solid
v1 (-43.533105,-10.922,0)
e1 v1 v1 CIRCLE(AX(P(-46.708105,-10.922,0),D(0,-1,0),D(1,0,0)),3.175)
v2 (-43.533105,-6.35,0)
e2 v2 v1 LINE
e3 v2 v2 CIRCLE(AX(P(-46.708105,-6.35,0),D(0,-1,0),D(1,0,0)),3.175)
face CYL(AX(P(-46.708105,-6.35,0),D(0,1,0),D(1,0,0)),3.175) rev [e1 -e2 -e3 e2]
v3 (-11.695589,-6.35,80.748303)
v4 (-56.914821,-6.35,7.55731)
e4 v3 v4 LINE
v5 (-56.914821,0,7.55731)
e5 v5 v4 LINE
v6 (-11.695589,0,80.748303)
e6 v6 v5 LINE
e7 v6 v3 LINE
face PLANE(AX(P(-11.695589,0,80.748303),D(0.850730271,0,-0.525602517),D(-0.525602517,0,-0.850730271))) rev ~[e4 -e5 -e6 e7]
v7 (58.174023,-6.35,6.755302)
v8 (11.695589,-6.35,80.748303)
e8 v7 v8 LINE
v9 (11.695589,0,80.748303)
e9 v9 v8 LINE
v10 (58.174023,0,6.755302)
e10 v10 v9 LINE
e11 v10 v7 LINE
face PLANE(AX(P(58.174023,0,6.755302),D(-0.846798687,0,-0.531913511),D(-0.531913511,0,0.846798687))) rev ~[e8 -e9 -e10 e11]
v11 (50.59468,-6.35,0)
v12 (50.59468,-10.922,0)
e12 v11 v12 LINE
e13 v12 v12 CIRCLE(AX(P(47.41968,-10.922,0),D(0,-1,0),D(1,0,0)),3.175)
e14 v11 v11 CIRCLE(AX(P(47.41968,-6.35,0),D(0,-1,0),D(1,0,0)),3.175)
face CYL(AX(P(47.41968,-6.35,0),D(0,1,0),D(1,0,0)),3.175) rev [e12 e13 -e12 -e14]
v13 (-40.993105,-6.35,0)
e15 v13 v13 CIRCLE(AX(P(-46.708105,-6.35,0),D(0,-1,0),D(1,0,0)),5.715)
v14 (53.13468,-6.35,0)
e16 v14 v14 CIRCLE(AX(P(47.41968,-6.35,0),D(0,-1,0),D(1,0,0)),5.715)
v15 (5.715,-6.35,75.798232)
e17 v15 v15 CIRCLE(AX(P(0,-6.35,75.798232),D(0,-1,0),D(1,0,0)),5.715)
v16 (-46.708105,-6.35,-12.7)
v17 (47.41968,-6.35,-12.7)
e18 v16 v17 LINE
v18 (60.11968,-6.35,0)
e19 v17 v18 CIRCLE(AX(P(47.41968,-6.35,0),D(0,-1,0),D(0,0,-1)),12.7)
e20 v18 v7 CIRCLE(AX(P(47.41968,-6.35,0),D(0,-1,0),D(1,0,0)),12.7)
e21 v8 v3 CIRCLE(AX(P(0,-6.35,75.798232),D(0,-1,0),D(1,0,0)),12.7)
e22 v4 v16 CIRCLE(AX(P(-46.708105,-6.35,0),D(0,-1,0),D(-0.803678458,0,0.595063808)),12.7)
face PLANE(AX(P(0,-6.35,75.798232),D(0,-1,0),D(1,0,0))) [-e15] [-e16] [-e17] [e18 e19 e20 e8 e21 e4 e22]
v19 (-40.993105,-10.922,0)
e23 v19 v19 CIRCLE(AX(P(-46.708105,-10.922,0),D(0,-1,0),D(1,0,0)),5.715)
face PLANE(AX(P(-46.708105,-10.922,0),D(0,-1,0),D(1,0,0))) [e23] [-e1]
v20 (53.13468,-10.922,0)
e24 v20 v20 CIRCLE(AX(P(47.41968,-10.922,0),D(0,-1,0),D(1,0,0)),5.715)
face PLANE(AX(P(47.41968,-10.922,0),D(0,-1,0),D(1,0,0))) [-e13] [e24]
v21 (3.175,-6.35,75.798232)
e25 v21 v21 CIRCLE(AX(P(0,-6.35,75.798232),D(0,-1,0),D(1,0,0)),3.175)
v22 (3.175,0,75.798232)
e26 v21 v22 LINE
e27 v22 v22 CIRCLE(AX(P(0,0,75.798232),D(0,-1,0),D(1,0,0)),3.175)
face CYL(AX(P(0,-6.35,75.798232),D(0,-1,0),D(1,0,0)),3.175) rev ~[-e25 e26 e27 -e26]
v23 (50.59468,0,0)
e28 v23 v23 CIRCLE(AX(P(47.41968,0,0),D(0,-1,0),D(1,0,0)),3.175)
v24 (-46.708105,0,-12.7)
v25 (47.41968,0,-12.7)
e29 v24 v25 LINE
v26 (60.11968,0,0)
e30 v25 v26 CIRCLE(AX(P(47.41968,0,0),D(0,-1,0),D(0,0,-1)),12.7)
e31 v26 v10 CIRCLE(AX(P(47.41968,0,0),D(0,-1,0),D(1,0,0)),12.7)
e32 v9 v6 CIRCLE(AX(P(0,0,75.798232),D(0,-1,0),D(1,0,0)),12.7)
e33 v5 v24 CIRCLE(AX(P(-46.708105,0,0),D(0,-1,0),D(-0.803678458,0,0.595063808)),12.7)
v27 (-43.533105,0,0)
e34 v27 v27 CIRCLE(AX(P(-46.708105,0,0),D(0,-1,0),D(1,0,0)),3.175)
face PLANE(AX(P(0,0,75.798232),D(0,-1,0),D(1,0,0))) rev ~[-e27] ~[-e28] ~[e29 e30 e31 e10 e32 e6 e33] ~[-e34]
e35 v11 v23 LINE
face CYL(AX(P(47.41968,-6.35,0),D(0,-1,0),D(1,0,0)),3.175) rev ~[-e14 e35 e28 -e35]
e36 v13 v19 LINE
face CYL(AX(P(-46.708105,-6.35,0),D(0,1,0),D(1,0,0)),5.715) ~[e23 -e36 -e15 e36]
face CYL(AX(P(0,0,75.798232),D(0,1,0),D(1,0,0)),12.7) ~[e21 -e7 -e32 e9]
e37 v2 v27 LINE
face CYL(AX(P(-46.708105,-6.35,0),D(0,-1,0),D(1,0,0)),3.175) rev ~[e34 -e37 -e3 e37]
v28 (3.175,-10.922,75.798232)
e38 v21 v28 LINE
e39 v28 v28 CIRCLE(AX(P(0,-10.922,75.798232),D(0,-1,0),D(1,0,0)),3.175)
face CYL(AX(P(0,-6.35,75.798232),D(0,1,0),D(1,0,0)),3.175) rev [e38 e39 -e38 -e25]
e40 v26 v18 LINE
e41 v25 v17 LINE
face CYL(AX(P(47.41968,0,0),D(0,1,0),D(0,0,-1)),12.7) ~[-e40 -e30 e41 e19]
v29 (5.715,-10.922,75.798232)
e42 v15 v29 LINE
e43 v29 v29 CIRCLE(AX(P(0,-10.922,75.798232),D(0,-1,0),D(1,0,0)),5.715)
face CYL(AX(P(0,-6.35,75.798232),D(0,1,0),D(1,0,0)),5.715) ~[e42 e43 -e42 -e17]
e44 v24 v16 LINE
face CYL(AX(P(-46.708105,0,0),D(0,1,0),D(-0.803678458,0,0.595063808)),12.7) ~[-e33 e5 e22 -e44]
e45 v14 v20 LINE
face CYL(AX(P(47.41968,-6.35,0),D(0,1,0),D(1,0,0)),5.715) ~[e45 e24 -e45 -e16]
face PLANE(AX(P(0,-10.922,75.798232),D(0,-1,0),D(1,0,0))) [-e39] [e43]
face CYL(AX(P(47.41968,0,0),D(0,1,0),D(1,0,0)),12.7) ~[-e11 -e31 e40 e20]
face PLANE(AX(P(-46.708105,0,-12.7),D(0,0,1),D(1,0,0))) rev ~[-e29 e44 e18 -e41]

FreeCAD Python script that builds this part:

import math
import FreeCAD as App
import Part
import Sketcher
from FreeCAD import Vector
Q = App.Units.Quantity

doc = App.newDocument("Part")
params = doc.addObject("Spreadsheet::Sheet", "Params")
for row, (alias, value) in enumerate([
    ("sketch1_radius", "0.5 in"),
    ("pad1_length", "0.25 in"),
    ("sketch2_diameter", "0.25 in"),
    ("pocket1_length", "1 in"),
    ("sketch3_diameter", "0.45 in"),
    ("sketch3_diameter2", "0.25 in"),
    ("pad2_length", "0.18 in"),
], start=1):
    params.set(f"A{row}", alias)
    params.set(f"B{row}", "=" + value)
    params.setAlias(f"B{row}", alias)

body = doc.addObject("PartDesign::Body", "Body")

sketch1 = doc.addObject("Sketcher::SketchObject", "Sketch")
body.addObject(sketch1)
sketch1.AttachmentSupport = (doc.XZ_Plane, [""])
sketch1.MapMode = "FlatFace"
sketch1.addGeometry(Part.ArcOfCircle(Part.Circle(Vector(0, 76, 0), Vector(0, 0, 1), 13), math.radians(23), math.radians(157)), False)
sketch1.addGeometry(Part.LineSegment(Vector(-12, 81, 0), Vector(-57, 8, 0)), False)
sketch1.addGeometry(Part.ArcOfCircle(Part.Circle(Vector(-47, 0, 0), Vector(0, 0, 1), 13), math.radians(143), math.radians(270)), False)
sketch1.addGeometry(Part.LineSegment(Vector(-47, -13, 0), Vector(47, -13, 0)), False)
sketch1.addGeometry(Part.ArcOfCircle(Part.Circle(Vector(47, 0, 0), Vector(0, 0, 1), 13), math.radians(-90), math.radians(0)), False)
sketch1.addGeometry(Part.ArcOfCircle(Part.Circle(Vector(47, 0, 0), Vector(0, 0, 1), 13), math.radians(0), math.radians(32)), False)
sketch1.addGeometry(Part.LineSegment(Vector(58, 7, 0), Vector(12, 81, 0)), False)
sketch1.addConstraint(Sketcher.Constraint("Coincident", 0, 2, 1, 1))
sketch1.addConstraint(Sketcher.Constraint("Coincident", 1, 2, 2, 1))
sketch1.addConstraint(Sketcher.Constraint("Tangent", 2, 2, 3, 1))
sketch1.addConstraint(Sketcher.Constraint("Tangent", 3, 2, 4, 1))
sketch1.addConstraint(Sketcher.Constraint("Tangent", 4, 2, 5, 1))
sketch1.addConstraint(Sketcher.Constraint("Tangent", 5, 2, 6, 1))
sketch1.addConstraint(Sketcher.Constraint("Coincident", 6, 2, 0, 1))
sketch1.addConstraint(Sketcher.Constraint("Horizontal", 3))
sketch1.addConstraint(Sketcher.Constraint("Equal", 0, 2))
sketch1.addConstraint(Sketcher.Constraint("Equal", 2, 4))
sketch1.addConstraint(Sketcher.Constraint("Equal", 4, 5))
sketch1.addConstraint(Sketcher.Constraint("Symmetric", 0, 2, 6, 2, -2))
sketch1.addConstraint(Sketcher.Constraint("PointOnObject", 2, 3, -1))
sketch1.addConstraint(Sketcher.Constraint("PointOnObject", 4, 2, -1))
sketch1.addConstraint(Sketcher.Constraint("Radius", 0, Q("0.5 in")))
sketch1.addConstraint(Sketcher.Constraint("DistanceY", -1, 1, 5, 2, Q("6.755302 mm")))
sketch1.addConstraint(Sketcher.Constraint("DistanceX", 1, 2, 4, 3, Q("104.334501 mm")))
sketch1.addConstraint(Sketcher.Constraint("DistanceY", 5, 2, 6, 2, Q("73.993002 mm")))
sketch1.addConstraint(Sketcher.Constraint("DistanceX", 3, 1, 3, 2, Q("94.127785 mm")))
sketch1.addConstraint(Sketcher.Constraint("DistanceX", -1, 1, 4, 3, Q("47.41968 mm")))
sketch1.setExpression("Constraints[14]", "Params.sketch1_radius")
pad1 = doc.addObject("PartDesign::Pad", "Pad")
body.addObject(pad1)
pad1.Profile = sketch1
pad1.setExpression("Length", "Params.pad1_length")

sketch2 = doc.addObject("Sketcher::SketchObject", "Sketch001")
body.addObject(sketch2)
sketch2.AttachmentSupport = (doc.XZ_Plane, [""])
sketch2.MapMode = "FlatFace"
sketch2.AttachmentOffset = App.Placement(Vector(0, 0, 0.25 * 25.4), App.Rotation())
sketch2.addGeometry(Part.Circle(Vector(-46.7, 0, 0), Vector(0, 0, 1), 3.2), False)
sketch2.addGeometry(Part.Circle(Vector(47.4, 0, 0), Vector(0, 0, 1), 3.2), False)
sketch2.addGeometry(Part.Circle(Vector(0, 75.8, 0), Vector(0, 0, 1), 3.2), False)
sketch2.addConstraint(Sketcher.Constraint("Equal", 0, 1))
sketch2.addConstraint(Sketcher.Constraint("Equal", 1, 2))
sketch2.addConstraint(Sketcher.Constraint("PointOnObject", 0, 3, -1))
sketch2.addConstraint(Sketcher.Constraint("PointOnObject", 1, 3, -1))
sketch2.addConstraint(Sketcher.Constraint("PointOnObject", 2, 3, -2))
sketch2.addConstraint(Sketcher.Constraint("Diameter", 0, Q("0.25 in")))
sketch2.addConstraint(Sketcher.Constraint("DistanceX", -1, 1, 1, 3, Q("47.41968 mm")))
sketch2.addConstraint(Sketcher.Constraint("DistanceX", 0, 3, -1, 1, Q("46.708105 mm")))
sketch2.addConstraint(Sketcher.Constraint("DistanceY", -1, 1, 2, 3, Q("75.798232 mm")))
sketch2.setExpression("Constraints[5]", "Params.sketch2_diameter")
pocket1 = doc.addObject("PartDesign::Pocket", "Pocket")
body.addObject(pocket1)
pocket1.Profile = sketch2
pocket1.setExpression("Length", "Params.pocket1_length")

sketch3 = doc.addObject("Sketcher::SketchObject", "Sketch002")
body.addObject(sketch3)
sketch3.AttachmentSupport = (doc.XZ_Plane, [""])
sketch3.MapMode = "FlatFace"
sketch3.AttachmentOffset = App.Placement(Vector(0, 0, 0.25 * 25.4), App.Rotation())
sketch3.addGeometry(Part.Circle(Vector(47.4, 0, 0), Vector(0, 0, 1), 5.7), False)
sketch3.addGeometry(Part.Circle(Vector(47.4, 0, 0), Vector(0, 0, 1), 3.2), False)
sketch3.addGeometry(Part.Circle(Vector(-46.7, 0, 0), Vector(0, 0, 1), 5.7), False)
sketch3.addGeometry(Part.Circle(Vector(-46.7, 0, 0), Vector(0, 0, 1), 3.2), False)
sketch3.addGeometry(Part.Circle(Vector(0, 75.8, 0), Vector(0, 0, 1), 5.7), False)
sketch3.addGeometry(Part.Circle(Vector(0, 75.8, 0), Vector(0, 0, 1), 3.2), False)
sketch3.addConstraint(Sketcher.Constraint("Coincident", 1, 3, 0, 3))
sketch3.addConstraint(Sketcher.Constraint("Coincident", 3, 3, 2, 3))
sketch3.addConstraint(Sketcher.Constraint("Coincident", 5, 3, 4, 3))
sketch3.addConstraint(Sketcher.Constraint("Equal", 0, 2))
sketch3.addConstraint(Sketcher.Constraint("Equal", 1, 3))
sketch3.addConstraint(Sketcher.Constraint("Equal", 2, 4))
sketch3.addConstraint(Sketcher.Constraint("Equal", 3, 5))
sketch3.addConstraint(Sketcher.Constraint("PointOnObject", 0, 3, -1))
sketch3.addConstraint(Sketcher.Constraint("PointOnObject", 2, 3, -1))
sketch3.addConstraint(Sketcher.Constraint("PointOnObject", 4, 3, -2))
sketch3.addConstraint(Sketcher.Constraint("Diameter", 0, Q("0.45 in")))
sketch3.addConstraint(Sketcher.Constraint("Diameter", 1, Q("0.25 in")))
sketch3.addConstraint(Sketcher.Constraint("DistanceX", -1, 1, 0, 3, Q("47.41968 mm")))
sketch3.addConstraint(Sketcher.Constraint("DistanceX", 2, 3, -1, 1, Q("46.708105 mm")))
sketch3.addConstraint(Sketcher.Constraint("DistanceY", -1, 1, 4, 3, Q("75.798232 mm")))
sketch3.setExpression("Constraints[10]", "Params.sketch3_diameter")
sketch3.setExpression("Constraints[11]", "Params.sketch3_diameter2")
pad2 = doc.addObject("PartDesign::Pad", "Pad001")
body.addObject(pad2)
pad2.Profile = sketch3
pad2.setExpression("Length", "Params.pad2_length")

doc.recompute()
